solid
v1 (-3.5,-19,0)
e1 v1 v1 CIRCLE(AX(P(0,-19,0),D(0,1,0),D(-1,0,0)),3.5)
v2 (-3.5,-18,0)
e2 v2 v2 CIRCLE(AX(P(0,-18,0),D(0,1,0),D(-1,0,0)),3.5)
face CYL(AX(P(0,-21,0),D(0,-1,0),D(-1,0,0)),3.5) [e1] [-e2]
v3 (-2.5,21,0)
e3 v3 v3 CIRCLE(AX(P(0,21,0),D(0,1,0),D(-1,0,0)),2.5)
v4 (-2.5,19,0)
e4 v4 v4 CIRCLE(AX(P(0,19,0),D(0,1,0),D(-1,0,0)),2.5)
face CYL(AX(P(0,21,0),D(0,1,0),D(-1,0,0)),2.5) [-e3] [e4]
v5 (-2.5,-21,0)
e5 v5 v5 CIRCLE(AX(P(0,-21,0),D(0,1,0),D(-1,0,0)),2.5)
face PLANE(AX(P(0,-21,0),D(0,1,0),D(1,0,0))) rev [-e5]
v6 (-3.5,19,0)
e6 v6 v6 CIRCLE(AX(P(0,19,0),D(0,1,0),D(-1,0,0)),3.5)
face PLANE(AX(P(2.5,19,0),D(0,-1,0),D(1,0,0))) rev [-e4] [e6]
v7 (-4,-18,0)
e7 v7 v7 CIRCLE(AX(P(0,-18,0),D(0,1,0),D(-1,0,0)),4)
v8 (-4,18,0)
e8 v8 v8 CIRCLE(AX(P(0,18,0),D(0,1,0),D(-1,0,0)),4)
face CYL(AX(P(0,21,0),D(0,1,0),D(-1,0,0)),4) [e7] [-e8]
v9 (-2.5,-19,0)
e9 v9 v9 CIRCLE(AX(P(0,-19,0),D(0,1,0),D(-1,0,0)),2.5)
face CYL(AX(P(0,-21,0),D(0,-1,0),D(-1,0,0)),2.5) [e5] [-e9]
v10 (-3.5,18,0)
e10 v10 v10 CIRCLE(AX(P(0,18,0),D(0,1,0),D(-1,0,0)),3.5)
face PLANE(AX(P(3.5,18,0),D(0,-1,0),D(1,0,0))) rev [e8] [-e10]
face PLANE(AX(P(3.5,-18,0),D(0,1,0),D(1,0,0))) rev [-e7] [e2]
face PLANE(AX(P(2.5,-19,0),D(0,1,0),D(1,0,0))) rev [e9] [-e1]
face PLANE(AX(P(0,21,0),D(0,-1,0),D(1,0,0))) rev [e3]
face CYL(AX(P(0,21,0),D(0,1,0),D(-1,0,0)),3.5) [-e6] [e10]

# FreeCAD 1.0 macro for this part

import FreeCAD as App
import Part
import Sketcher

V = App.Vector
Q = App.Units.Quantity


def add_polygon(sketch, points):
    """Adds a closed chain of lines whose ends are joined by coincident constraints."""
    first, n = sketch.GeometryCount, len(points)
    for a, b in zip(points, points[1:] + points[:1]):
        sketch.addGeometry(Part.LineSegment(App.Vector(*a, 0), App.Vector(*b, 0)), False)
    for i in range(n):
        sketch.addConstraint(Sketcher.Constraint("Coincident", first + i, 2, first + (i + 1) % n, 1))

doc = App.newDocument("Part")
body = doc.addObject("PartDesign::Body", "Body")

# Sketch on XY plane
sketch1 = body.newObject("Sketcher::SketchObject", "Sketch")
sketch1.AttachmentSupport = (doc.getObject("XY_Plane"), [""])
sketch1.MapMode = "FlatFace"
add_polygon(sketch1, [(0, 21), (0, 0), (4, 0), (4, 18), (3.5, 18), (3.5, 19), (2.5, 19), (2.5, 21)])  # lines 0-7
sketch1.addConstraint([
    Sketcher.Constraint("Vertical", 0),
    Sketcher.Constraint("Horizontal", 1),
    Sketcher.Constraint("Vertical", 2),
    Sketcher.Constraint("Horizontal", 3),
    Sketcher.Constraint("Vertical", 4),
    Sketcher.Constraint("Horizontal", 5),
    Sketcher.Constraint("Vertical", 6),
    Sketcher.Constraint("Horizontal", 7),
    Sketcher.Constraint("Coincident", 0, 2, -1, 1),
    Sketcher.Constraint("Equal", 5, 4),
    Sketcher.Constraint("DistanceX", 1, 1, 1, 2, Q("4 mm")),
    Sketcher.Constraint("DistanceX", 5, 2, 5, 1, Q("1 mm")),
    Sketcher.Constraint("DistanceY", 0, 2, 0, 1, Q("21 mm")),
    Sketcher.Constraint("DistanceY", 2, 1, 2, 2, Q("18 mm")),
    Sketcher.Constraint("DistanceX", 3, 2, 3, 1, Q("0.5 mm")),
])
revolution = body.newObject("PartDesign::Revolution", "Revolution")
revolution.Profile = sketch1
revolution.ReferenceAxis = (sketch1, ["V_Axis"])
revolution.Angle = 360
doc.recompute()

mirrored = body.newObject("PartDesign::Mirrored", "Mirrored")
mirrored.Originals = [revolution]
mirrored.MirrorPlane = (doc.getObject("XZ_Plane"), [""])
body.Tip = mirrored

doc.recompute()
